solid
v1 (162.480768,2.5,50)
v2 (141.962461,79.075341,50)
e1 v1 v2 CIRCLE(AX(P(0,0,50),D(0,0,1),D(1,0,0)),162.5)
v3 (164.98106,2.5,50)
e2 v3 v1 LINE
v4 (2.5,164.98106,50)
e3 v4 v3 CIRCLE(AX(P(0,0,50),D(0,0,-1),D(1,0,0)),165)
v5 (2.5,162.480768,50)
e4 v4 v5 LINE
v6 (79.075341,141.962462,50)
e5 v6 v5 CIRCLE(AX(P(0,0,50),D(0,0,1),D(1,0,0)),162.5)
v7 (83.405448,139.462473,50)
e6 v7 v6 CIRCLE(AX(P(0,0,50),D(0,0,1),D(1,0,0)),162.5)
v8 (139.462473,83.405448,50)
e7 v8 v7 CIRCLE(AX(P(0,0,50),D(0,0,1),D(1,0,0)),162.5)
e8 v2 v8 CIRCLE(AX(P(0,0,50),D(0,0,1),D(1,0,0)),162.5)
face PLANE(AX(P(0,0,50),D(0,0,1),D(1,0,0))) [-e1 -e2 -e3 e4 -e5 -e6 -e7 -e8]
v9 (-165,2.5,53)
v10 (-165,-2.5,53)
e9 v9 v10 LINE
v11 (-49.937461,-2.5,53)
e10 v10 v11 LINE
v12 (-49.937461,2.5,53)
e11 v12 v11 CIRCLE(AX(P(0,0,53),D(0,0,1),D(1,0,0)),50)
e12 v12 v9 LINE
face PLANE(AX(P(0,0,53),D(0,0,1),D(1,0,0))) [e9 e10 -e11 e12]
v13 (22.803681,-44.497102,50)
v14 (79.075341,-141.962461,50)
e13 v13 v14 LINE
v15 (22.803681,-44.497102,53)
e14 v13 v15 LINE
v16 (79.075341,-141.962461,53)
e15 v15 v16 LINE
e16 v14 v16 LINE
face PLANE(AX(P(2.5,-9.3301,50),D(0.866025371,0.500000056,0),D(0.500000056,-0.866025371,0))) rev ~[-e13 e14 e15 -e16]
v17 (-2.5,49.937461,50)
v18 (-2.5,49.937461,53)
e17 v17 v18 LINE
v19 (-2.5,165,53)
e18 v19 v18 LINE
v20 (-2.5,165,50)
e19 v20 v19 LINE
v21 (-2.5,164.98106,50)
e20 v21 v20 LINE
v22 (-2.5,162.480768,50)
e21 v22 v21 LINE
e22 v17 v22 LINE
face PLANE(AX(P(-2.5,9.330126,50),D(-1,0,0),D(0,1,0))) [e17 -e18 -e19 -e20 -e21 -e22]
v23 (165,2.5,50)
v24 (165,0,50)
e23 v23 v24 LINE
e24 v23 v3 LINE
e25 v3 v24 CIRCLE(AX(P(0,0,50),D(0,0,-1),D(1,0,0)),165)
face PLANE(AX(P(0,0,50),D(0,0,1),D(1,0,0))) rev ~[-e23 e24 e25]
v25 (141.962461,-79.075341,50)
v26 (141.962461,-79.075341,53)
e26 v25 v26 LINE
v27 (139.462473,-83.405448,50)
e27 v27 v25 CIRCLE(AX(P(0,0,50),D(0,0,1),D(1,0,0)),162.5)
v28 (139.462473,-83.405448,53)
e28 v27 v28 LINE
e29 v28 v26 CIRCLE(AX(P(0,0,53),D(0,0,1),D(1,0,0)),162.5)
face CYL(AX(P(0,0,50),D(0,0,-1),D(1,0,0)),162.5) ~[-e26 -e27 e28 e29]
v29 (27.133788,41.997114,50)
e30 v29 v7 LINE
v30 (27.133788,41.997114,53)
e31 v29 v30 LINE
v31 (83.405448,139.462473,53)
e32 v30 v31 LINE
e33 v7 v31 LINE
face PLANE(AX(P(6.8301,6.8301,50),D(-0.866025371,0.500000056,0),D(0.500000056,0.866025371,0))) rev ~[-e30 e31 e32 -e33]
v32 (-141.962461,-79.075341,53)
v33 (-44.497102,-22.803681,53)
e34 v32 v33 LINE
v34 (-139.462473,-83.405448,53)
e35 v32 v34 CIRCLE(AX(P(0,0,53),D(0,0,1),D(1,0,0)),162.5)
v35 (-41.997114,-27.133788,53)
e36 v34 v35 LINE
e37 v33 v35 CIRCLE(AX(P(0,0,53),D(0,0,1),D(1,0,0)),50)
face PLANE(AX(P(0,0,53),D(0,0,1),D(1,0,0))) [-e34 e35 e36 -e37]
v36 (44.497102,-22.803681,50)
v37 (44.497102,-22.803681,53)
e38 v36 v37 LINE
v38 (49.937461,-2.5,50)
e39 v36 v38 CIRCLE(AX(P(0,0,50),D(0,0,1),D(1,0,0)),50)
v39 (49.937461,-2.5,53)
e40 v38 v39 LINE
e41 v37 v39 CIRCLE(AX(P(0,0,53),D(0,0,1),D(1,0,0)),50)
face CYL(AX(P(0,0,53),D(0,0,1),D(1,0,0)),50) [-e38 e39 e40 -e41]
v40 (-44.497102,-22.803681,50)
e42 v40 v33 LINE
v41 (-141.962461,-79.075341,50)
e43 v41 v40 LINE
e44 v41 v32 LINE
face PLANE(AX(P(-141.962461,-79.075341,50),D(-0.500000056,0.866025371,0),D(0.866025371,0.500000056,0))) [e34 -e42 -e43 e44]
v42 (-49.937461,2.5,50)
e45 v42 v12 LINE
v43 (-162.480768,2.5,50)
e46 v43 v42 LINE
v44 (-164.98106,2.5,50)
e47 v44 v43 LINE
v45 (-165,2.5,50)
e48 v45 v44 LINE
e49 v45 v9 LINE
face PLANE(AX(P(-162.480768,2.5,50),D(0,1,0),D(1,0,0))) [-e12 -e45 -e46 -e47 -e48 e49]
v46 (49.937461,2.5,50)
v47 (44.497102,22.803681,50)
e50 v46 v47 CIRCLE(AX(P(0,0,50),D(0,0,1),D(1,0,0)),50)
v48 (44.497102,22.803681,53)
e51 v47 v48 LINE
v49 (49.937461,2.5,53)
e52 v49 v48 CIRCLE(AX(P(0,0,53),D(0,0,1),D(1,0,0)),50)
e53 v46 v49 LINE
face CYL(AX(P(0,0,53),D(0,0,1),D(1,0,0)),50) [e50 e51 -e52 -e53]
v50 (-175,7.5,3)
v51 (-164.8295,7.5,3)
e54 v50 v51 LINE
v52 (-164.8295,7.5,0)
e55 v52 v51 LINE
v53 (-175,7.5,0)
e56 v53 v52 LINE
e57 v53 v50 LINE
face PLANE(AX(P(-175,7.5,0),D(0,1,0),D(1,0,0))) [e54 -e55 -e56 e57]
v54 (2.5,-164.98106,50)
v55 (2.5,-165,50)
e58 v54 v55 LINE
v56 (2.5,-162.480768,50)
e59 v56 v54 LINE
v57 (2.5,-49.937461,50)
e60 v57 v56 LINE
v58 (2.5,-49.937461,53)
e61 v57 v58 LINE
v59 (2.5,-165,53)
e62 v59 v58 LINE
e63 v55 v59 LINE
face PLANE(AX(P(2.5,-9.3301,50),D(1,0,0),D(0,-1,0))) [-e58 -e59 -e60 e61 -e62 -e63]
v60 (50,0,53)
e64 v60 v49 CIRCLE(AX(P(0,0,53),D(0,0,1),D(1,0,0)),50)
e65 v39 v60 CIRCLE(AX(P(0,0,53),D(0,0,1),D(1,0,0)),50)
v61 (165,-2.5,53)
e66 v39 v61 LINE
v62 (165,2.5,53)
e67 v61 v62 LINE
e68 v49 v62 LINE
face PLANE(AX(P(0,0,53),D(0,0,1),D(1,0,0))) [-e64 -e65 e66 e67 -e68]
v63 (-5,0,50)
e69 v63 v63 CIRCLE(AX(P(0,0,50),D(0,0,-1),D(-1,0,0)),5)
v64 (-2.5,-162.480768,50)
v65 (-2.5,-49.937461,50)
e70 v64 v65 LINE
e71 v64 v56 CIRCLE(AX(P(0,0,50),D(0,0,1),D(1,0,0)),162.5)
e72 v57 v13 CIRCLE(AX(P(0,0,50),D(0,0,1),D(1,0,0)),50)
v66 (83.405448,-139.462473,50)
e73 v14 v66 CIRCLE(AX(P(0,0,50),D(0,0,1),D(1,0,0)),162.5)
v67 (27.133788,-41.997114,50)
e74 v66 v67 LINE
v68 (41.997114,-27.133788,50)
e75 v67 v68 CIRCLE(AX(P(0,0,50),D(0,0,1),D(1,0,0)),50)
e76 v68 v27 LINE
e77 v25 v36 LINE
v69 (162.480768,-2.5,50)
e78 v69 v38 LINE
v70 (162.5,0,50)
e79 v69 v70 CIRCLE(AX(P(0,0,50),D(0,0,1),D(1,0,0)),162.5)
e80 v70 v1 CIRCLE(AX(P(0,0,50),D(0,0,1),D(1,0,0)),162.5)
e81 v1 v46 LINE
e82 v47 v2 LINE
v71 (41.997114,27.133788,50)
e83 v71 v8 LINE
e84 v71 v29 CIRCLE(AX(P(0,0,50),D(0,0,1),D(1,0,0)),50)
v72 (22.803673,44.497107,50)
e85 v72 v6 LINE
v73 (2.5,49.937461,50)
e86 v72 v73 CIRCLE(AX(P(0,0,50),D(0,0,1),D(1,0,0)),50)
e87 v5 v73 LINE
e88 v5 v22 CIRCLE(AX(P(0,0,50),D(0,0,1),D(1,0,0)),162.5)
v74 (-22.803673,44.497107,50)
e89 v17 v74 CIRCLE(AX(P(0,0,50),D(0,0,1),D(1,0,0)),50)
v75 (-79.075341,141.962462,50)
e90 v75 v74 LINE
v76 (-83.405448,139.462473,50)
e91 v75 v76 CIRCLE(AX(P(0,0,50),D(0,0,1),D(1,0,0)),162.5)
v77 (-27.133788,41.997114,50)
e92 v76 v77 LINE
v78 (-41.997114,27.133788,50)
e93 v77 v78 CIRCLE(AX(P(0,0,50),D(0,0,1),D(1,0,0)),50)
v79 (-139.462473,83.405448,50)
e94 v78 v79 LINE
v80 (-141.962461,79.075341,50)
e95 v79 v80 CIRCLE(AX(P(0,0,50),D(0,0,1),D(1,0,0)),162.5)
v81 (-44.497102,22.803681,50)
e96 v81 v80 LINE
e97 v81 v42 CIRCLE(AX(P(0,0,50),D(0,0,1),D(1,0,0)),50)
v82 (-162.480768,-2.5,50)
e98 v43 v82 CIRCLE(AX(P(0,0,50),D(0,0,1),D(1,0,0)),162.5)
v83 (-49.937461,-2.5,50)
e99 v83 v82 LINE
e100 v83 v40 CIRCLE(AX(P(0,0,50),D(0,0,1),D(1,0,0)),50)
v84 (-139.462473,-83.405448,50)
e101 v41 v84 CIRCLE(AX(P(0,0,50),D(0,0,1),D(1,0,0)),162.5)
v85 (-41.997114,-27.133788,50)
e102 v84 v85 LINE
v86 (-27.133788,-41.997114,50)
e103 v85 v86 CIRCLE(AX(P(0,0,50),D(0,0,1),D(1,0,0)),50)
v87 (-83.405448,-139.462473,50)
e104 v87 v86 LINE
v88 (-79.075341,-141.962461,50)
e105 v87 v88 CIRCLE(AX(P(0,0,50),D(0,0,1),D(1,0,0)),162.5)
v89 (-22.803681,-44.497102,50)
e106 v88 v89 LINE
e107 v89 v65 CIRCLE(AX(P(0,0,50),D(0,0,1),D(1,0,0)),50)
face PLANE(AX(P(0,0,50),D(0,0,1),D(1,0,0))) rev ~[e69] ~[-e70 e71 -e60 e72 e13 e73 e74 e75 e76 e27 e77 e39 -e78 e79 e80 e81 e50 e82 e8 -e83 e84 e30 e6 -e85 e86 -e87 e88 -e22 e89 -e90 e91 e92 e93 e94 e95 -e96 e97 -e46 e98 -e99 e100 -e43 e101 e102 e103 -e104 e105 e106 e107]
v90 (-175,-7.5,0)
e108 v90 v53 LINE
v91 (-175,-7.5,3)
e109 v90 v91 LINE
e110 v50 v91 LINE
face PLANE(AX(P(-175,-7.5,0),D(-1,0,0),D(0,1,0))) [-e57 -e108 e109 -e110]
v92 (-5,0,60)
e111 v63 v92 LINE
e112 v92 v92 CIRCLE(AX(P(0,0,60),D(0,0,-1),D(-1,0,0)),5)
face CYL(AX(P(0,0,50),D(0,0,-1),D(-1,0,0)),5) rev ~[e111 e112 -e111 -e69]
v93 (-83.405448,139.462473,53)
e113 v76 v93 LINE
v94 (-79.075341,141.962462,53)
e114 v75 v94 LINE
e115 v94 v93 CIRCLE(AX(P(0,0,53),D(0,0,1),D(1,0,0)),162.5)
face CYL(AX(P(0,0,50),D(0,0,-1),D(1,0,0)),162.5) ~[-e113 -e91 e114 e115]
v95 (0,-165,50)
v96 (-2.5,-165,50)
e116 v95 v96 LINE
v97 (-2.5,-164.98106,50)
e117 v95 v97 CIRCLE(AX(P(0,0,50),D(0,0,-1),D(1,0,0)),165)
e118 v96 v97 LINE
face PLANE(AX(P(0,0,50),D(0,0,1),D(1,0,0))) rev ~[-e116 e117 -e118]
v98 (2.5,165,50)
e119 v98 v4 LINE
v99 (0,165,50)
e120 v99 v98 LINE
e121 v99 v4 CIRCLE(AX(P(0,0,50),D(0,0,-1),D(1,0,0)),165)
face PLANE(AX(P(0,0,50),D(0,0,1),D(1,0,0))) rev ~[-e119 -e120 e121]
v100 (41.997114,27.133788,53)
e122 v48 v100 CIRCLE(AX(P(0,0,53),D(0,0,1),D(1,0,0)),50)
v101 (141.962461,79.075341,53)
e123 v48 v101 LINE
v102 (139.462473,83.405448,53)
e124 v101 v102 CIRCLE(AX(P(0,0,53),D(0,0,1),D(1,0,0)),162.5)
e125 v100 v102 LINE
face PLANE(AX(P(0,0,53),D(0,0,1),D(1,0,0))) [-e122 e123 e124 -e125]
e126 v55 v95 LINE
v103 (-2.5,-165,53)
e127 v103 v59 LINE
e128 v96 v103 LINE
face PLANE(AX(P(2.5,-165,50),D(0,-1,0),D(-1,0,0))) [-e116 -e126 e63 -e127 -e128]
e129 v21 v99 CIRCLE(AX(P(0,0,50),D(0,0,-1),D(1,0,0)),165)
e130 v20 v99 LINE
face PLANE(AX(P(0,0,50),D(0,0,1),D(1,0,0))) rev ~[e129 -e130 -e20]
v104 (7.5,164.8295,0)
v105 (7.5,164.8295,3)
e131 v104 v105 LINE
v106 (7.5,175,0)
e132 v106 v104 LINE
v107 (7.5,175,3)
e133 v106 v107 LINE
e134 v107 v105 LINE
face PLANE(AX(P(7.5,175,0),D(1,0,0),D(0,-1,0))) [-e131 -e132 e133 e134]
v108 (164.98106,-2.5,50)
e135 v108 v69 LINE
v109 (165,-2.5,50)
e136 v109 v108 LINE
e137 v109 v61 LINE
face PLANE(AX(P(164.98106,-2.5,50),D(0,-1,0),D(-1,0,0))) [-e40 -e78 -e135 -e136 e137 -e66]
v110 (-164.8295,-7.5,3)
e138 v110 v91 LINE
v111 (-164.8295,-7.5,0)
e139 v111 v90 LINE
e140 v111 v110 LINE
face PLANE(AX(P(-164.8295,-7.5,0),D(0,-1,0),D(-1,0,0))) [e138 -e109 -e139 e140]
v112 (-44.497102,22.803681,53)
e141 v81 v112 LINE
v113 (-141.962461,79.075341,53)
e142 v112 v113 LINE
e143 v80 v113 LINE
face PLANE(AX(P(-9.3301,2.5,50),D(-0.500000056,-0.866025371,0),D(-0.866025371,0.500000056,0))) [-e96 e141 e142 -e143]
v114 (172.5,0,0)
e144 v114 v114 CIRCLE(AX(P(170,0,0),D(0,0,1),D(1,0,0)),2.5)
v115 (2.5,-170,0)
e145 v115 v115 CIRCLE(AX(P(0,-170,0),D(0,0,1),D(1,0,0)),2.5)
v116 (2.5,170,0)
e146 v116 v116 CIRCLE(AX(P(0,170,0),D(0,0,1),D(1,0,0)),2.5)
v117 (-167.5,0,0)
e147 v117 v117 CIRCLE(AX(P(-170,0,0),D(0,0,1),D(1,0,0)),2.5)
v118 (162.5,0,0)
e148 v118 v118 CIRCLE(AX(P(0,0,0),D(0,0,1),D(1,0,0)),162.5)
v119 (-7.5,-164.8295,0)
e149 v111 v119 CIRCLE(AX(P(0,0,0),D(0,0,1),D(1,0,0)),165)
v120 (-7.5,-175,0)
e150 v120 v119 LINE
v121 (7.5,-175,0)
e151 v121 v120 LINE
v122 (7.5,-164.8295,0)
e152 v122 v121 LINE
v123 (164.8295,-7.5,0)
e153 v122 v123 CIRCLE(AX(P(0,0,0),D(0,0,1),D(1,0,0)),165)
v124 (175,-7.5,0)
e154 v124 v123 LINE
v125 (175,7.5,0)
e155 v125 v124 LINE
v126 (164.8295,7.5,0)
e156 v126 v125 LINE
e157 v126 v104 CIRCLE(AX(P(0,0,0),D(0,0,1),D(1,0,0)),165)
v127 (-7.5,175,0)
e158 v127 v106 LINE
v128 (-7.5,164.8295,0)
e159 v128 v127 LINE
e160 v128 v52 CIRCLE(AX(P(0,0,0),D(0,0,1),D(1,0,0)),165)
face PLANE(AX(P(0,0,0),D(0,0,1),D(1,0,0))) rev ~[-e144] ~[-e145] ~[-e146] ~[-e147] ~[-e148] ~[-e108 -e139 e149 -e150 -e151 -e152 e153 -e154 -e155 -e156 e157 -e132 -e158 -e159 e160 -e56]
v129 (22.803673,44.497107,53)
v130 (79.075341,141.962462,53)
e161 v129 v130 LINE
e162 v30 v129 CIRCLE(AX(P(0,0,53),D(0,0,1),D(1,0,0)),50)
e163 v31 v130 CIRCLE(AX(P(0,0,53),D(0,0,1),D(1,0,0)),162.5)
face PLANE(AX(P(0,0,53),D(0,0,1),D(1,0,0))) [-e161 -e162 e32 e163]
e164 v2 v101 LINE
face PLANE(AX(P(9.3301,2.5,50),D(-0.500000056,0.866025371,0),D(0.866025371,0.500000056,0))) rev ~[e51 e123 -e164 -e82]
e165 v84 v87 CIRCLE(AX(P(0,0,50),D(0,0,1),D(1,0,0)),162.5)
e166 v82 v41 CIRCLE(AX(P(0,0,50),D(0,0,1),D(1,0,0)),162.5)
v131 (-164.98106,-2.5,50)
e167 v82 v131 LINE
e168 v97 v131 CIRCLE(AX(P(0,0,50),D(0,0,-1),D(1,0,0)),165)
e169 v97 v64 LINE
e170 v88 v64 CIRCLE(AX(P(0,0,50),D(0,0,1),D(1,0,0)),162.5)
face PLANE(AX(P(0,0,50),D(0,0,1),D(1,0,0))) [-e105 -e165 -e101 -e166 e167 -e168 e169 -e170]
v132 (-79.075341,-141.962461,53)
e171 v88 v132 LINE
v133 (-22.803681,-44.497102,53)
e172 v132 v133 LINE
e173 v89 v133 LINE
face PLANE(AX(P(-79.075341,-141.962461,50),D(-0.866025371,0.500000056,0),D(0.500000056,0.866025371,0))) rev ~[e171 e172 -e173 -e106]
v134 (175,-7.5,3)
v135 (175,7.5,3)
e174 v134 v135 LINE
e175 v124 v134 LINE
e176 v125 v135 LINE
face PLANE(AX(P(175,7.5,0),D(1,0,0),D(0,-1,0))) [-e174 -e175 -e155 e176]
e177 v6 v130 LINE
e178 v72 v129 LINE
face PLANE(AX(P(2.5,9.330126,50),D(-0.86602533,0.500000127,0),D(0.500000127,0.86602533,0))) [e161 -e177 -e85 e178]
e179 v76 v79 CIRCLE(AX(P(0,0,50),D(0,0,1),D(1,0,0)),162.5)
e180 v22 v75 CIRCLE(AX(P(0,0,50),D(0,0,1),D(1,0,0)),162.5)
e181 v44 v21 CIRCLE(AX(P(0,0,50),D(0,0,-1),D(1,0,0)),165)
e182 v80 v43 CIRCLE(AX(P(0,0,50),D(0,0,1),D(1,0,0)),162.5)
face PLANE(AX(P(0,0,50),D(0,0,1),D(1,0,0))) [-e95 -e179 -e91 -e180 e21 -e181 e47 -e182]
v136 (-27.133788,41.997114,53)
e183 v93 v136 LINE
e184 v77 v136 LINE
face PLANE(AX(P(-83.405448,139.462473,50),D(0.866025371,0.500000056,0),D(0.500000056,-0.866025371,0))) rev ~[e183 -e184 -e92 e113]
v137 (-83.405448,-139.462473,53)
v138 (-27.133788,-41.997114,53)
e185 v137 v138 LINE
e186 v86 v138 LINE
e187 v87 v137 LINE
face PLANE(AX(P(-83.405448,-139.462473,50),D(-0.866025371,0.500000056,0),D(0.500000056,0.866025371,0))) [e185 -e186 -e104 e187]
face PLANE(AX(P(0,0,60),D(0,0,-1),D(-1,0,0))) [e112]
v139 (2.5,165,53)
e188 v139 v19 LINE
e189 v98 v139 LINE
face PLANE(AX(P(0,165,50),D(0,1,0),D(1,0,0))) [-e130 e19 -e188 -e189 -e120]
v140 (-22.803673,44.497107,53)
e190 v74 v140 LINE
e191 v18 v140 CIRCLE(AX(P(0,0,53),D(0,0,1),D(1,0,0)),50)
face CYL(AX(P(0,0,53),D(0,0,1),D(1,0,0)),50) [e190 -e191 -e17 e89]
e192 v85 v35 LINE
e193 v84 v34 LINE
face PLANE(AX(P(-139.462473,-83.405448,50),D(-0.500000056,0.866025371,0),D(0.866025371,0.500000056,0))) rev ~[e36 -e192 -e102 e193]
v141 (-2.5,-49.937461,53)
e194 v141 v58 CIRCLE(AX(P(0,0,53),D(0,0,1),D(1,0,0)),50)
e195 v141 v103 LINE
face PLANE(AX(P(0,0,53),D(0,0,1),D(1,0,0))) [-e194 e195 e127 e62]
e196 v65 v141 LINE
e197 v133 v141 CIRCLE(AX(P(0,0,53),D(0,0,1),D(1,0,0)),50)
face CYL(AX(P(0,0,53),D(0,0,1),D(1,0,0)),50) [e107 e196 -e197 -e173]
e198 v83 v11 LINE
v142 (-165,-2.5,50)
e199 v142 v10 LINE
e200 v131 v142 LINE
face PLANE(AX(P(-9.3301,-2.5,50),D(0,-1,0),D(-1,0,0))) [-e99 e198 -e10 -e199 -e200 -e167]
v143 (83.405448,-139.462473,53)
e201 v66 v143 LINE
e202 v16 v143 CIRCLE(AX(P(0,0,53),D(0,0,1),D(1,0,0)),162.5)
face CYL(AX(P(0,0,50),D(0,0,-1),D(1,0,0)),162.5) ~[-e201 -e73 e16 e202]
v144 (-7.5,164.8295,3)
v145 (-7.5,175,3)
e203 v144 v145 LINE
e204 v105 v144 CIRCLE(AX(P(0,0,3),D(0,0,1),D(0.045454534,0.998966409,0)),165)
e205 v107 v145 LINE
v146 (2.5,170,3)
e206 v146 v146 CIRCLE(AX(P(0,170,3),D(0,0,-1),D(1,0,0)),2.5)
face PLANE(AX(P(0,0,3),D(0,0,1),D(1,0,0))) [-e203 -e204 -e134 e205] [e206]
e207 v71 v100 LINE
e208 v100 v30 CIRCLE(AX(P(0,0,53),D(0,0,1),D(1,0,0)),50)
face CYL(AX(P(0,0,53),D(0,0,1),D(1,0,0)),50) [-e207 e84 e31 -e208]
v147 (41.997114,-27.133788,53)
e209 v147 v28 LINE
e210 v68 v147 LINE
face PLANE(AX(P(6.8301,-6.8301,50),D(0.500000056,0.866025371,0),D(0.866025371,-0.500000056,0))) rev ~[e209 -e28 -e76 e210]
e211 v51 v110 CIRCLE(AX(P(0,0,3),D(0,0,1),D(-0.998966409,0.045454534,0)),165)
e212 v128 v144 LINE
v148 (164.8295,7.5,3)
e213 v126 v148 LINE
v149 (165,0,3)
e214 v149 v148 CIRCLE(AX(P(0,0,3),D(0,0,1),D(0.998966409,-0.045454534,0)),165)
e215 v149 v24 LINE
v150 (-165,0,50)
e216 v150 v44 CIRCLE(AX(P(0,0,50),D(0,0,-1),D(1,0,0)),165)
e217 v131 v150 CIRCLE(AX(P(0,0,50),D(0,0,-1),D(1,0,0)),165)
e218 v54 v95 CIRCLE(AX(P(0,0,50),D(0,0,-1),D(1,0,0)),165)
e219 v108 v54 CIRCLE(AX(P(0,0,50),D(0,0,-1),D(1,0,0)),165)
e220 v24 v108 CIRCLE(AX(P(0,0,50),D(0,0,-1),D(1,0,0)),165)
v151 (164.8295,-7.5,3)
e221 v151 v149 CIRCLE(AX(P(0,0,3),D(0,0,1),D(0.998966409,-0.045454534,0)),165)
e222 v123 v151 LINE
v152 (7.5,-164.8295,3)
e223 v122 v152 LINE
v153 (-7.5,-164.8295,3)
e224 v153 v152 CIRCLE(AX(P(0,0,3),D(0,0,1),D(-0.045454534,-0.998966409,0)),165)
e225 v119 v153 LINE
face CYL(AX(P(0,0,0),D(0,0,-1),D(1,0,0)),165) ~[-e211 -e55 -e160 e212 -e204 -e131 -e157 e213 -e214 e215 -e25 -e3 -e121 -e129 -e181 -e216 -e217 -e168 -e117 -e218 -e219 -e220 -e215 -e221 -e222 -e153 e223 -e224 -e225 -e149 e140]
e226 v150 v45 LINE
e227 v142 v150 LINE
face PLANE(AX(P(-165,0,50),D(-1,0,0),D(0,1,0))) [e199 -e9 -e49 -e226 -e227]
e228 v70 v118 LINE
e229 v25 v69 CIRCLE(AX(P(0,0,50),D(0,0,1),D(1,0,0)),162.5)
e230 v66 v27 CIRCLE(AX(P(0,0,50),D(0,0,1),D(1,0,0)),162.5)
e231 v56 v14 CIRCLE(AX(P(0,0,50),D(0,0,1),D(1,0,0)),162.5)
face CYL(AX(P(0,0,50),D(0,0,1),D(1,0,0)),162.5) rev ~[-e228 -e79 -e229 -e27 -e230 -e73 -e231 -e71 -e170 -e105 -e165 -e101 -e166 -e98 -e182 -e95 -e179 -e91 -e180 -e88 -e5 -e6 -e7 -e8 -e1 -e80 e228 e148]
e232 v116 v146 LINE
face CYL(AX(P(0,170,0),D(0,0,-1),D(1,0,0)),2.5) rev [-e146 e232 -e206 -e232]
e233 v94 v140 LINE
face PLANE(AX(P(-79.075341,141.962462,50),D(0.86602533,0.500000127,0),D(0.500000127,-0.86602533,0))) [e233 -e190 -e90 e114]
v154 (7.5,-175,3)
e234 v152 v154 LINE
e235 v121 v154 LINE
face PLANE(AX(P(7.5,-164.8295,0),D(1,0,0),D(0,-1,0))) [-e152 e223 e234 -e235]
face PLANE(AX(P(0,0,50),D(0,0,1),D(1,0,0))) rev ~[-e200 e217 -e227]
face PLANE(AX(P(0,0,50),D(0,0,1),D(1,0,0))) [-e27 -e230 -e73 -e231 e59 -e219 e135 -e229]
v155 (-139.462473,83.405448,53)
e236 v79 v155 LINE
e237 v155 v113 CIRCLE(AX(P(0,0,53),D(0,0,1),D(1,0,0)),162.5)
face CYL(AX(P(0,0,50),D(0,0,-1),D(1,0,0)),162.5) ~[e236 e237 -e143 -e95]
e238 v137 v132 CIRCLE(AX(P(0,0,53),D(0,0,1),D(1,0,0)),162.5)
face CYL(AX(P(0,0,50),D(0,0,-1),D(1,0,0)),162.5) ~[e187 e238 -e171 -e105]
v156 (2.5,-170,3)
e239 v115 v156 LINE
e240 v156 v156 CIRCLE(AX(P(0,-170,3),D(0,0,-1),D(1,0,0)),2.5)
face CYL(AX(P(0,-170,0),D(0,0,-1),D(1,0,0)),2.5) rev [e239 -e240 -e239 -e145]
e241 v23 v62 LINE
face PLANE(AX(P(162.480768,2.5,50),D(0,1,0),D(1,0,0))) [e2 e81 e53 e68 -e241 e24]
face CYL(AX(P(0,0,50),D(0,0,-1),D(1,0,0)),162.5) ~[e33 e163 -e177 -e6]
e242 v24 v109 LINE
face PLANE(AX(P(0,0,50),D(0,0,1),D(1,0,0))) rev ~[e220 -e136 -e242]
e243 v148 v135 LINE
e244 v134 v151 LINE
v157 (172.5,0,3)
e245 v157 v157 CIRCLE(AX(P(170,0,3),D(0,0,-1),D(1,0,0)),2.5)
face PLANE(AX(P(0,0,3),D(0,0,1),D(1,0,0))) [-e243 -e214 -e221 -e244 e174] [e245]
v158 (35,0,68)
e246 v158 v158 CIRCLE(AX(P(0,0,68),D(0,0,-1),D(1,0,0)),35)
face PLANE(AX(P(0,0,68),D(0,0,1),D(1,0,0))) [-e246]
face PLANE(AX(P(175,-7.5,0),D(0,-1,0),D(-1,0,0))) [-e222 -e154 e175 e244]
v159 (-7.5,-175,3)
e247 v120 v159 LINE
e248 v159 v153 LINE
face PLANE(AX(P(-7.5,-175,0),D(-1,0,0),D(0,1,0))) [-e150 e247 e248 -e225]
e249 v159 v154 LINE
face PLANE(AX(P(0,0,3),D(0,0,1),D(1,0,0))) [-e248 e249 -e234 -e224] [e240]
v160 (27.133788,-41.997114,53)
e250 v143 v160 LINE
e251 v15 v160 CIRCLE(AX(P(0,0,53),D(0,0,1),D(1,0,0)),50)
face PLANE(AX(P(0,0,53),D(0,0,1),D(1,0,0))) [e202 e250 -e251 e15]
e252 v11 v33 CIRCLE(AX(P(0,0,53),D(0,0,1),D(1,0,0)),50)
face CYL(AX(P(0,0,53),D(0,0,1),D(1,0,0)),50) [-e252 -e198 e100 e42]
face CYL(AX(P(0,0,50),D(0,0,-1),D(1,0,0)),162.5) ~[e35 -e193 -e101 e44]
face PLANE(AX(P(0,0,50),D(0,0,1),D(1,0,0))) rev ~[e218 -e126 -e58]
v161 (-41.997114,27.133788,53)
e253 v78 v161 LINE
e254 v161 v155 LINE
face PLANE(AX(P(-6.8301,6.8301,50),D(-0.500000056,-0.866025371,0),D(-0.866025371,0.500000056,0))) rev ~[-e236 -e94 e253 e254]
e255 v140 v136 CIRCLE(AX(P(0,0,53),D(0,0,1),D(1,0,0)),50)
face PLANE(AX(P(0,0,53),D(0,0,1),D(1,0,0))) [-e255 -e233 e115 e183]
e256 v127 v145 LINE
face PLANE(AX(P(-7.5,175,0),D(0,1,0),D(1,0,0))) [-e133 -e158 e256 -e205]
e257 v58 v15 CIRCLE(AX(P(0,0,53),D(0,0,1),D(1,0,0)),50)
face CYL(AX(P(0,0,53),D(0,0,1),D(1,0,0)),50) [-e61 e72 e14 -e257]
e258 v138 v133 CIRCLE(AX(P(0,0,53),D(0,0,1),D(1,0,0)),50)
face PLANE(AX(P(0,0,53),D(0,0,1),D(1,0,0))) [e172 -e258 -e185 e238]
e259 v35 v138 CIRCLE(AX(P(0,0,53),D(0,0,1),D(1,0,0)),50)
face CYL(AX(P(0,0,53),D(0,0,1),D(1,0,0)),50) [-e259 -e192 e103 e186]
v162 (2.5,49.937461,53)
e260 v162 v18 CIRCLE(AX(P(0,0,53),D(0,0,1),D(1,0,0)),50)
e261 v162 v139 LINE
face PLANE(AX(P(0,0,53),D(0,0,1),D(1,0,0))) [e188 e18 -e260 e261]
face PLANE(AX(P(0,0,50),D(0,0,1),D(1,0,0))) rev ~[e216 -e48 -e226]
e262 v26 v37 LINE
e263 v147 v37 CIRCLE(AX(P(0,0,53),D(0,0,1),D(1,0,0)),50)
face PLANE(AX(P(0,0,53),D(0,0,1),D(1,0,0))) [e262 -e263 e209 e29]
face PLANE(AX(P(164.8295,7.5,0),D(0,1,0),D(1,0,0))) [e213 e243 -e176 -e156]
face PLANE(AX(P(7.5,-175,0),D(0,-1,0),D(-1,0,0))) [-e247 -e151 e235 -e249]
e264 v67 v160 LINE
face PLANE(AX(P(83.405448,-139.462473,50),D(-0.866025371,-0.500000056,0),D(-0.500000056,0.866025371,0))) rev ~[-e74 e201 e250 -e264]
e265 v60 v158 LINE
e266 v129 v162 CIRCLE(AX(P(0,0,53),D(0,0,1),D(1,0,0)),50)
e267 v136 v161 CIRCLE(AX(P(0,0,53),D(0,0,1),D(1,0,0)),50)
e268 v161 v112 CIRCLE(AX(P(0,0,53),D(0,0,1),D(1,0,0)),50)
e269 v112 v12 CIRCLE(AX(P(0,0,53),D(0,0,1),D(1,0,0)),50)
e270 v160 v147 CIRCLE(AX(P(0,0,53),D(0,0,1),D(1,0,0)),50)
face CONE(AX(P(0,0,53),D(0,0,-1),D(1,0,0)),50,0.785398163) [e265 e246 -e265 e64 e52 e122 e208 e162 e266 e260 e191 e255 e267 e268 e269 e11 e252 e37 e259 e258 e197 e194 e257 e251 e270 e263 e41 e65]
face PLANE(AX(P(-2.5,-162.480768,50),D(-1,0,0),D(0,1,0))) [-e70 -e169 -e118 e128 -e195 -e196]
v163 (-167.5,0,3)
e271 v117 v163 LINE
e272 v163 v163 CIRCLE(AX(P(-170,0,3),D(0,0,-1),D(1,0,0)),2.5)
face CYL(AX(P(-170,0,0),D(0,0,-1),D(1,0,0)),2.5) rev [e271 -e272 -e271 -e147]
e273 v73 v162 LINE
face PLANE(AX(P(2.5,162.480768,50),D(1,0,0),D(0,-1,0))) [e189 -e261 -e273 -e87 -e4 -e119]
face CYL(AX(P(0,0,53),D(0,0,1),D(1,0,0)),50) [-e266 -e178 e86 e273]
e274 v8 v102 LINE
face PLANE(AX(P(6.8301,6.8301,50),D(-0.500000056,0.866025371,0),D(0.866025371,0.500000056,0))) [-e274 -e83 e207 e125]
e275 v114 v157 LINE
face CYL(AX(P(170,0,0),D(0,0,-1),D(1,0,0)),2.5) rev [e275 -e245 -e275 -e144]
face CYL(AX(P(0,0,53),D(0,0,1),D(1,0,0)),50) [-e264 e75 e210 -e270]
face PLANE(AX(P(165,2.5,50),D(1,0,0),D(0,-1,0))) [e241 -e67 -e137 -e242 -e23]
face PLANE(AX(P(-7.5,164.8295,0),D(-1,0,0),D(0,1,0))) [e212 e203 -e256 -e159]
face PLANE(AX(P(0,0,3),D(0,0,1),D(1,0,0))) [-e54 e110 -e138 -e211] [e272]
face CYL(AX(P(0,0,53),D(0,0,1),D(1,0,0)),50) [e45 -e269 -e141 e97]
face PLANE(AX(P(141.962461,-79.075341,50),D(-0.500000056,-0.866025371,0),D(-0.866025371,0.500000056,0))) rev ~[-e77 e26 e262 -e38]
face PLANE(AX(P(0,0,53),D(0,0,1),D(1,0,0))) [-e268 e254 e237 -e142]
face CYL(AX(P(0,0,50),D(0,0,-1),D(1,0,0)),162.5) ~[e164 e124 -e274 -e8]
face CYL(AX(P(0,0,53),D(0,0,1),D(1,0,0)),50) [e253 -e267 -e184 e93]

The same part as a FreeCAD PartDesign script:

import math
import FreeCAD as App
import Part
import Sketcher
from FreeCAD import Vector
Q = App.Units.Quantity

doc = App.newDocument("Part")
params = doc.addObject("Spreadsheet::Sheet", "Params")
for row, (alias, value) in enumerate([
    ("sketch1_diameter", "5 mm"),
    ("sketch1_radius", "165 mm"),
    ("sketch1_width", "15 mm"),
    ("pad1_length", "3 mm"),
    ("sketch2_diameter", "330 mm"),
    ("pad2_length", "50 mm"),
    ("sketch3_diameter", "325 mm"),
    ("pocket1_length", "50 mm"),
    ("sketch4_width", "5 mm"),
    ("sketch4_radius", "162.5 mm"),
    ("sketch4_width2", "155.67 mm"),
    ("pad3_length", "3 mm"),
    ("sketch5_diameter", "100 mm"),
    ("pad4_length", "15 mm"),
    ("pad4_length2", "3 mm"),
    ("pad4_taper", "-45 deg"),
    ("sketch6_diameter", "10 mm"),
    ("pocket2_length", "10 mm"),
], start=1):
    params.set(f"A{row}", alias)
    params.set(f"B{row}", "=" + value)
    params.setAlias(f"B{row}", alias)

body = doc.addObject("PartDesign::Body", "Body")
body.AllowCompound = True

# Sketch on XY plane
sketch1 = body.newObject("Sketcher::SketchObject", "Sketch")
sketch1.AttachmentSupport = (doc.getObject("XY_Plane"), [""])
sketch1.MapMode = "FlatFace"
sketch1.addGeometry(Part.ArcOfCircle(Part.Circle(Vector(0, 0, 0), Vector(0, 0, 1), 165), math.radians(-2.605251), math.radians(2.605251)), False)
sketch1.addGeometry(Part.LineSegment(Vector(164.8295, -7.5, 0), Vector(175, -7.5, 0)), False)
sketch1.addGeometry(Part.LineSegment(Vector(175, -7.5, 0), Vector(175, 7.5, 0)), False)
sketch1.addGeometry(Part.LineSegment(Vector(175, 7.5, 0), Vector(164.8295, 7.5, 0)), False)
sketch1.addGeometry(Part.Circle(Vector(170, 0, 0), Vector(0, 0, 1), 2.5), False)
sketch1.addGeometry(Part.ArcOfCircle(Part.Circle(Vector(0, 0, 0), Vector(0, 0, 1), 165), math.radians(87.394749), math.radians(92.605251)), False)
sketch1.addGeometry(Part.LineSegment(Vector(7.5, 164.8295, 0), Vector(7.5, 175, 0)), False)
sketch1.addGeometry(Part.LineSegment(Vector(7.5, 175, 0), Vector(-7.5, 175, 0)), False)
sketch1.addGeometry(Part.LineSegment(Vector(-7.5, 175, 0), Vector(-7.5, 164.8295, 0)), False)
sketch1.addGeometry(Part.Circle(Vector(0, 170, 0), Vector(0, 0, 1), 2.5), False)
sketch1.addGeometry(Part.ArcOfCircle(Part.Circle(Vector(0, 0, 0), Vector(0, 0, 1), 165), math.radians(-92.605251), math.radians(-87.394749)), False)
sketch1.addGeometry(Part.LineSegment(Vector(-7.5, -164.8295, 0), Vector(-7.5, -175, 0)), False)
sketch1.addGeometry(Part.LineSegment(Vector(-7.5, -175, 0), Vector(7.5, -175, 0)), False)
sketch1.addGeometry(Part.LineSegment(Vector(7.5, -175, 0), Vector(7.5, -164.8295, 0)), False)
sketch1.addGeometry(Part.Circle(Vector(0, -170, 0), Vector(0, 0, 1), 2.5), False)
sketch1.addGeometry(Part.ArcOfCircle(Part.Circle(Vector(0, 0, 0), Vector(0, 0, 1), 165), math.radians(177.394749), math.radians(182.605251)), False)
sketch1.addGeometry(Part.LineSegment(Vector(-164.8295, 7.5, 0), Vector(-175, 7.5, 0)), False)
sketch1.addGeometry(Part.LineSegment(Vector(-175, 7.5, 0), Vector(-175, -7.5, 0)), False)
sketch1.addGeometry(Part.LineSegment(Vector(-175, -7.5, 0), Vector(-164.8295, -7.5, 0)), False)
sketch1.addGeometry(Part.Circle(Vector(-170, 0, 0), Vector(0, 0, 1), 2.5), False)
sketch1.addConstraint(Sketcher.Constraint("Coincident", 0, 1, 1, 1))
sketch1.addConstraint(Sketcher.Constraint("Coincident", 1, 2, 2, 1))
sketch1.addConstraint(Sketcher.Constraint("Coincident", 2, 2, 3, 1))
sketch1.addConstraint(Sketcher.Constraint("Coincident", 3, 2, 0, 2))
sketch1.addConstraint(Sketcher.Constraint("Coincident", 5, 1, 6, 1))
sketch1.addConstraint(Sketcher.Constraint("Coincident", 6, 2, 7, 1))
sketch1.addConstraint(Sketcher.Constraint("Coincident", 7, 2, 8, 1))
sketch1.addConstraint(Sketcher.Constraint("Coincident", 8, 2, 5, 2))
sketch1.addConstraint(Sketcher.Constraint("Coincident", 10, 1, 11, 1))
sketch1.addConstraint(Sketcher.Constraint("Coincident", 11, 2, 12, 1))
sketch1.addConstraint(Sketcher.Constraint("Coincident", 12, 2, 13, 1))
sketch1.addConstraint(Sketcher.Constraint("Coincident", 13, 2, 10, 2))
sketch1.addConstraint(Sketcher.Constraint("Coincident", 15, 1, 16, 1))
sketch1.addConstraint(Sketcher.Constraint("Coincident", 16, 2, 17, 1))
sketch1.addConstraint(Sketcher.Constraint("Coincident", 17, 2, 18, 1))
sketch1.addConstraint(Sketcher.Constraint("Coincident", 18, 2, 15, 2))
sketch1.addConstraint(Sketcher.Constraint("Horizontal", 1))
sketch1.addConstraint(Sketcher.Constraint("Vertical", 2))
sketch1.addConstraint(Sketcher.Constraint("Horizontal", 3))
sketch1.addConstraint(Sketcher.Constraint("Vertical", 6))
sketch1.addConstraint(Sketcher.Constraint("Horizontal", 7))
sketch1.addConstraint(Sketcher.Constraint("Vertical", 8))
sketch1.addConstraint(Sketcher.Constraint("Vertical", 11))
sketch1.addConstraint(Sketcher.Constraint("Horizontal", 12))
sketch1.addConstraint(Sketcher.Constraint("Vertical", 13))
sketch1.addConstraint(Sketcher.Constraint("Horizontal", 16))
sketch1.addConstraint(Sketcher.Constraint("Vertical", 17))
sketch1.addConstraint(Sketcher.Constraint("Horizontal", 18))
sketch1.addConstraint(Sketcher.Constraint("Coincident", 0, 3, -1, 1))
sketch1.addConstraint(Sketcher.Constraint("Coincident", 5, 3, -1, 1))
sketch1.addConstraint(Sketcher.Constraint("Coincident", 10, 3, -1, 1))
sketch1.addConstraint(Sketcher.Constraint("Coincident", 15, 3, -1, 1))
sketch1.addConstraint(Sketcher.Constraint("Equal", 0, 5))
sketch1.addConstraint(Sketcher.Constraint("Equal", 4, 9))
sketch1.addConstraint(Sketcher.Constraint("Equal", 5, 10))
sketch1.addConstraint(Sketcher.Constraint("Equal", 9, 14))
sketch1.addConstraint(Sketcher.Constraint("Equal", 10, 15))
sketch1.addConstraint(Sketcher.Constraint("Equal", 14, 19))
sketch1.addConstraint(Sketcher.Constraint("Symmetric", 9, 3, 14, 3, -1, 1))
sketch1.addConstraint(Sketcher.Constraint("Symmetric", 4, 3, 19, 3, -1, 1))
sketch1.addConstraint(Sketcher.Constraint("Symmetric", 6, 2, 11, 2, -1, 1))
sketch1.addConstraint(Sketcher.Constraint("Symmetric", 1, 2, 16, 2, -1, 1))
sketch1.addConstraint(Sketcher.Constraint("PointOnObject", 4, 3, -1))
sketch1.addConstraint(Sketcher.Constraint("PointOnObject", 9, 3, -2))
sketch1.addConstraint(Sketcher.Constraint("Horizontal", 5, 1, 8, 2))
sketch1.addConstraint(Sketcher.Constraint("Horizontal", 10, 1, 13, 2))
sketch1.addConstraint(Sketcher.Constraint("Horizontal", 3, 2, 15, 1))
sketch1.addConstraint(Sketcher.Constraint("Horizontal", 1, 2, 17, 2))
sketch1.addConstraint(Sketcher.Constraint("Equal", 12, 2))
sketch1.addConstraint(Sketcher.Constraint("Equal", 18, 6))
sketch1.addConstraint(Sketcher.Constraint("Diameter", 4, Q("5 mm")))
sketch1.addConstraint(Sketcher.Constraint("Radius", 0, Q("165 mm")))
sketch1.addConstraint(Sketcher.Constraint("DistanceX", 4, 3, 1, 2, Q("5 mm")))
sketch1.addConstraint(Sketcher.Constraint("DistanceY", 9, 3, 6, 2, Q("5 mm")))
sketch1.addConstraint(Sketcher.Constraint("DistanceX", 7, 2, 7, 1, Q("15 mm")))
sketch1.addConstraint(Sketcher.Constraint("DistanceX", -1, 1, 4, 3, Q("170 mm")))
sketch1.setExpression("Constraints[50]", "Params.sketch1_diameter")
sketch1.setExpression("Constraints[51]", "Params.sketch1_radius")
sketch1.setExpression("Constraints[54]", "Params.sketch1_width")
pad1 = body.newObject("PartDesign::Pad", "Pad")
pad1.Profile = sketch1
pad1.setExpression("Length", "Params.pad1_length")

# Sketch on XY plane
sketch2 = body.newObject("Sketcher::SketchObject", "Sketch001")
sketch2.AttachmentSupport = (doc.getObject("XY_Plane"), [""])
sketch2.MapMode = "FlatFace"
sketch2.addGeometry(Part.Circle(Vector(0, 0, 0), Vector(0, 0, 1), 165), False)
sketch2.addConstraint(Sketcher.Constraint("Coincident", 0, 3, -1, 1))
sketch2.addConstraint(Sketcher.Constraint("Diameter", 0, Q("330 mm")))
sketch2.setExpression("Constraints[1]", "Params.sketch2_diameter")
pad2 = body.newObject("PartDesign::Pad", "Pad001")
pad2.Profile = sketch2
pad2.setExpression("Length", "Params.pad2_length")

# Sketch on XY plane
sketch3 = body.newObject("Sketcher::SketchObject", "Sketch002")
sketch3.AttachmentSupport = (doc.getObject("XY_Plane"), [""])
sketch3.MapMode = "FlatFace"
sketch3.AttachmentOffset = App.Placement(Vector(0, 0, 50), App.Rotation())
sketch3.addGeometry(Part.Circle(Vector(0, 0, 0), Vector(0, 0, 1), 162.5), False)
sketch3.addConstraint(Sketcher.Constraint("Coincident", 0, 3, -1, 1))
sketch3.addConstraint(Sketcher.Constraint("Diameter", 0, Q("325 mm")))
sketch3.setExpression("Constraints[1]", "Params.sketch3_diameter")
pocket1 = body.newObject("PartDesign::Pocket", "Pocket")
pocket1.Profile = sketch3
pocket1.setExpression("Length", "Params.pocket1_length")

# Sketch on XY plane
sketch4 = body.newObject("Sketcher::SketchObject", "Sketch003")
sketch4.AttachmentSupport = (doc.getObject("XY_Plane"), [""])
sketch4.MapMode = "FlatFace"
sketch4.AttachmentOffset = App.Placement(Vector(0, 0, 50), App.Rotation())
sketch4.addGeometry(Part.LineSegment(Vector(9.3301, 2.5, 0), Vector(141.962461, 79.075341, 0)), False)
sketch4.addGeometry(Part.ArcOfCircle(Part.Circle(Vector(0, 0, 0), Vector(0, 0, 1), 162.5), math.radians(29.1185), math.radians(30.881508)), False)
sketch4.addGeometry(Part.LineSegment(Vector(139.462473, 83.405448, 0), Vector(6.8301, 6.8301, 0)), False)
sketch4.addGeometry(Part.LineSegment(Vector(6.8301, 6.8301, 0), Vector(83.405448, 139.462473, 0)), False)
sketch4.addGeometry(Part.ArcOfCircle(Part.Circle(Vector(0, 0, 0), Vector(0, 0, 1), 162.5), math.radians(59.118492), math.radians(60.8815)), False)
sketch4.addGeometry(Part.LineSegment(Vector(79.075341, 141.962462, 0), Vector(2.5, 9.330126, 0)), False)
sketch4.addGeometry(Part.LineSegment(Vector(2.5, 9.330126, 0), Vector(2.5, 165, 0)), False)
sketch4.addGeometry(Part.LineSegment(Vector(2.5, 165, 0), Vector(-2.5, 165, 0)), False)
sketch4.addGeometry(Part.LineSegment(Vector(-2.5, 165, 0), Vector(-2.5, 9.330126, 0)), False)
sketch4.addGeometry(Part.LineSegment(Vector(-2.5, 9.330126, 0), Vector(-79.075341, 141.962462, 0)), False)
sketch4.addGeometry(Part.ArcOfCircle(Part.Circle(Vector(0, 0, 0), Vector(0, 0, 1), 162.5), math.radians(119.1185), math.radians(120.881508)), False)
sketch4.addGeometry(Part.LineSegment(Vector(-83.405448, 139.462473, 0), Vector(-6.8301, 6.8301, 0)), False)
sketch4.addGeometry(Part.LineSegment(Vector(-6.8301, 6.8301, 0), Vector(-139.462473, 83.405448, 0)), False)
sketch4.addGeometry(Part.ArcOfCircle(Part.Circle(Vector(0, 0, 0), Vector(0, 0, 1), 162.5), math.radians(149.118492), math.radians(150.8815)), False)
sketch4.addGeometry(Part.LineSegment(Vector(-141.962461, 79.075341, 0), Vector(-9.3301, 2.5, 0)), False)
sketch4.addGeometry(Part.LineSegment(Vector(-9.3301, 2.5, 0), Vector(-165, 2.5, 0)), False)
sketch4.addGeometry(Part.LineSegment(Vector(-165, 2.5, 0), Vector(-165, -2.5, 0)), False)
sketch4.addGeometry(Part.LineSegment(Vector(-165, -2.5, 0), Vector(-9.3301, -2.5, 0)), False)
sketch4.addGeometry(Part.LineSegment(Vector(-9.3301, -2.5, 0), Vector(-141.962461, -79.075341, 0)), False)
sketch4.addGeometry(Part.ArcOfCircle(Part.Circle(Vector(0, 0, 0), Vector(0, 0, 1), 162.5), math.radians(-150.8815), math.radians(-149.118492)), False)
sketch4.addGeometry(Part.LineSegment(Vector(-139.462473, -83.405448, 0), Vector(-6.8301, -6.8301, 0)), False)
sketch4.addGeometry(Part.LineSegment(Vector(-6.8301, -6.8301, 0), Vector(-83.405448, -139.462473, 0)), False)
sketch4.addGeometry(Part.ArcOfCircle(Part.Circle(Vector(0, 0, 0), Vector(0, 0, 1), 162.5), math.radians(-120.881508), math.radians(-119.1185)), False)
sketch4.addGeometry(Part.LineSegment(Vector(-79.075341, -141.962461, 0), Vector(-2.5, -9.3301, 0)), False)
sketch4.addGeometry(Part.LineSegment(Vector(-2.5, -9.3301, 0), Vector(-2.5, -165, 0)), False)
sketch4.addGeometry(Part.LineSegment(Vector(-2.5, -165, 0), Vector(2.5, -165, 0)), False)
sketch4.addGeometry(Part.LineSegment(Vector(2.5, -165, 0), Vector(2.5, -9.3301, 0)), False)
sketch4.addGeometry(Part.LineSegment(Vector(2.5, -9.3301, 0), Vector(79.075341, -141.962461, 0)), False)
sketch4.addGeometry(Part.ArcOfCircle(Part.Circle(Vector(0, 0, 0), Vector(0, 0, 1), 162.5), math.radians(-60.8815), math.radians(-59.118492)), False)
sketch4.addGeometry(Part.LineSegment(Vector(83.405448, -139.462473, 0), Vector(6.8301, -6.8301, 0)), False)
sketch4.addGeometry(Part.LineSegment(Vector(6.8301, -6.8301, 0), Vector(139.462473, -83.405448, 0)), False)
sketch4.addGeometry(Part.ArcOfCircle(Part.Circle(Vector(0, 0, 0), Vector(0, 0, 1), 162.5), math.radians(-30.881508), math.radians(-29.1185)), False)
sketch4.addGeometry(Part.LineSegment(Vector(141.962461, -79.075341, 0), Vector(9.3301, -2.5, 0)), False)
sketch4.addGeometry(Part.LineSegment(Vector(9.3301, -2.5, 0), Vector(165, -2.5, 0)), False)
sketch4.addGeometry(Part.LineSegment(Vector(165, -2.5, 0), Vector(165, 2.5, 0)), False)
sketch4.addGeometry(Part.LineSegment(Vector(165, 2.5, 0), Vector(9.3301, 2.5, 0)), False)
sketch4.addConstraint(Sketcher.Constraint("Coincident", 0, 2, 1, 1))
sketch4.addConstraint(Sketcher.Constraint("Coincident", 1, 2, 2, 1))
sketch4.addConstraint(Sketcher.Constraint("Coincident", 2, 2, 3, 1))
sketch4.addConstraint(Sketcher.Constraint("Coincident", 3, 2, 4, 1))
sketch4.addConstraint(Sketcher.Constraint("Coincident", 4, 2, 5, 1))
sketch4.addConstraint(Sketcher.Constraint("Coincident", 5, 2, 6, 1))
sketch4.addConstraint(Sketcher.Constraint("Coincident", 6, 2, 7, 1))
sketch4.addConstraint(Sketcher.Constraint("Coincident", 7, 2, 8, 1))
sketch4.addConstraint(Sketcher.Constraint("Coincident", 8, 2, 9, 1))
sketch4.addConstraint(Sketcher.Constraint("Coincident", 9, 2, 10, 1))
sketch4.addConstraint(Sketcher.Constraint("Coincident", 10, 2, 11, 1))
sketch4.addConstraint(Sketcher.Constraint("Coincident", 11, 2, 12, 1))
sketch4.addConstraint(Sketcher.Constraint("Coincident", 12, 2, 13, 1))
sketch4.addConstraint(Sketcher.Constraint("Coincident", 13, 2, 14, 1))
sketch4.addConstraint(Sketcher.Constraint("Coincident", 14, 2, 15, 1))
sketch4.addConstraint(Sketcher.Constraint("Coincident", 15, 2, 16, 1))
sketch4.addConstraint(Sketcher.Constraint("Coincident", 16, 2, 17, 1))
sketch4.addConstraint(Sketcher.Constraint("Coincident", 17, 2, 18, 1))
sketch4.addConstraint(Sketcher.Constraint("Coincident", 18, 2, 19, 1))
sketch4.addConstraint(Sketcher.Constraint("Coincident", 19, 2, 20, 1))
sketch4.addConstraint(Sketcher.Constraint("Coincident", 20, 2, 21, 1))
sketch4.addConstraint(Sketcher.Constraint("Coincident", 21, 2, 22, 1))
sketch4.addConstraint(Sketcher.Constraint("Coincident", 22, 2, 23, 1))
sketch4.addConstraint(Sketcher.Constraint("Coincident", 23, 2, 24, 1))
sketch4.addConstraint(Sketcher.Constraint("Coincident", 24, 2, 25, 1))
sketch4.addConstraint(Sketcher.Constraint("Coincident", 25, 2, 26, 1))
sketch4.addConstraint(Sketcher.Constraint("Coincident", 26, 2, 27, 1))
sketch4.addConstraint(Sketcher.Constraint("Coincident", 27, 2, 28, 1))
sketch4.addConstraint(Sketcher.Constraint("Coincident", 28, 2, 29, 1))
sketch4.addConstraint(Sketcher.Constraint("Coincident", 29, 2, 30, 1))
sketch4.addConstraint(Sketcher.Constraint("Coincident", 30, 2, 31, 1))
sketch4.addConstraint(Sketcher.Constraint("Coincident", 31, 2, 32, 1))
sketch4.addConstraint(Sketcher.Constraint("Coincident", 32, 2, 33, 1))
sketch4.addConstraint(Sketcher.Constraint("Coincident", 33, 2, 34, 1))
sketch4.addConstraint(Sketcher.Constraint("Coincident", 34, 2, 35, 1))
sketch4.addConstraint(Sketcher.Constraint("Coincident", 35, 2, 0, 1))
sketch4.addConstraint(Sketcher.Constraint("Vertical", 6))
sketch4.addConstraint(Sketcher.Constraint("Horizontal", 7))
sketch4.addConstraint(Sketcher.Constraint("Vertical", 8))
sketch4.addConstraint(Sketcher.Constraint("Horizontal", 15))
sketch4.addConstraint(Sketcher.Constraint("Vertical", 16))
sketch4.addConstraint(Sketcher.Constraint("Horizontal", 17))
sketch4.addConstraint(Sketcher.Constraint("Vertical", 24))
sketch4.addConstraint(Sketcher.Constraint("Horizontal", 25))
sketch4.addConstraint(Sketcher.Constraint("Vertical", 26))
sketch4.addConstraint(Sketcher.Constraint("Horizontal", 33))
sketch4.addConstraint(Sketcher.Constraint("Vertical", 34))
sketch4.addConstraint(Sketcher.Constraint("Horizontal", 35))
sketch4.addConstraint(Sketcher.Constraint("Coincident", 1, 3, -1, 1))
sketch4.addConstraint(Sketcher.Constraint("Coincident", 4, 3, -1, 1))
sketch4.addConstraint(Sketcher.Constraint("Coincident", 10, 3, -1, 1))
sketch4.addConstraint(Sketcher.Constraint("Coincident", 13, 3, -1, 1))
sketch4.addConstraint(Sketcher.Constraint("Coincident", 19, 3, -1, 1))
sketch4.addConstraint(Sketcher.Constraint("Coincident", 22, 3, -1, 1))
sketch4.addConstraint(Sketcher.Constraint("Coincident", 28, 3, -1, 1))
sketch4.addConstraint(Sketcher.Constraint("Coincident", 31, 3, -1, 1))
sketch4.addConstraint(Sketcher.Constraint("Equal", 1, 4))
sketch4.addConstraint(Sketcher.Constraint("Equal", 4, 10))
sketch4.addConstraint(Sketcher.Constraint("Equal", 10, 13))
sketch4.addConstraint(Sketcher.Constraint("Equal", 13, 19))
sketch4.addConstraint(Sketcher.Constraint("Equal", 19, 22))
sketch4.addConstraint(Sketcher.Constraint("Equal", 22, 28))
sketch4.addConstraint(Sketcher.Constraint("Equal", 28, 31))
sketch4.addConstraint(Sketcher.Constraint("Symmetric", 2, 2, 20, 2, -1, 1))
sketch4.addConstraint(Sketcher.Constraint("Symmetric", 5, 2, 23, 2, -1, 1))
sketch4.addConstraint(Sketcher.Constraint("Symmetric", 7, 2, 25, 2, -1, 1))
sketch4.addConstraint(Sketcher.Constraint("Symmetric", 11, 2, 29, 2, -1, 1))
sketch4.addConstraint(Sketcher.Constraint("Symmetric", 14, 2, 32, 2, -1, 1))
sketch4.addConstraint(Sketcher.Constraint("Symmetric", 16, 2, 34, 2, -1, 1))
sketch4.addConstraint(Sketcher.Constraint("Symmetric", 5, 2, 8, 2, -2))
sketch4.addConstraint(Sketcher.Constraint("Symmetric", 2, 2, 11, 2, -2))
sketch4.addConstraint(Sketcher.Constraint("Symmetric", 17, 2, 32, 2, -2))
sketch4.addConstraint(Sketcher.Constraint("Parallel", 0, 2))
sketch4.addConstraint(Sketcher.Constraint("Parallel", 3, 5))
sketch4.addConstraint(Sketcher.Constraint("Perpendicular", 2, 9))
sketch4.addConstraint(Sketcher.Constraint("Parallel", 9, 11))
sketch4.addConstraint(Sketcher.Constraint("Perpendicular", 5, 12))
sketch4.addConstraint(Sketcher.Constraint("Parallel", 12, 14))
sketch4.addConstraint(Sketcher.Constraint("Perpendicular", 11, 18))
sketch4.addConstraint(Sketcher.Constraint("Parallel", 18, 20))
sketch4.addConstraint(Sketcher.Constraint("Perpendicular", 14, 21))
sketch4.addConstraint(Sketcher.Constraint("Parallel", 21, 23))
sketch4.addConstraint(Sketcher.Constraint("Perpendicular", 20, 27))
sketch4.addConstraint(Sketcher.Constraint("Parallel", 27, 29))
sketch4.addConstraint(Sketcher.Constraint("Perpendicular", 23, 30))
sketch4.addConstraint(Sketcher.Constraint("Parallel", 30, 32))
sketch4.addConstraint(Sketcher.Constraint("Horizontal", 4, 2, 9, 2))
sketch4.addConstraint(Sketcher.Constraint("Horizontal", 0, 2, 13, 2))
sketch4.addConstraint(Sketcher.Constraint("Horizontal", 23, 2, 26, 2))
sketch4.addConstraint(Sketcher.Constraint("Equal", 35, 6))
sketch4.addConstraint(Sketcher.Constraint("Equal", 25, 16))
sketch4.addConstraint(Sketcher.Constraint("Equal", 0, 2))
sketch4.addConstraint(Sketcher.Constraint("Equal", 2, 3))
sketch4.addConstraint(Sketcher.Constraint("Equal", 3, 5))
sketch4.addConstraint(Sketcher.Constraint("DistanceX", 7, 2, 7, 1, Q("5 mm")))
sketch4.addConstraint(Sketcher.Constraint("Radius", 1, Q("162.5 mm")))
sketch4.addConstraint(Sketcher.Constraint("Angle", 0, Q("30 deg")))
sketch4.addConstraint(Sketcher.Constraint("DistanceY", -1, 1, 6, 2, Q("165 mm")))
sketch4.addConstraint(Sketcher.Constraint("DistanceX", 15, 2, 15, 1, Q("155.67 mm")))
sketch4.setExpression("Constraints[94]", "Params.sketch4_width")
sketch4.setExpression("Constraints[95]", "Params.sketch4_radius")
sketch4.setExpression("Constraints[98]", "Params.sketch4_width2")
pad3 = body.newObject("PartDesign::Pad", "Pad002")
pad3.Profile = sketch4
pad3.setExpression("Length", "Params.pad3_length")

# Sketch on XY plane
sketch5 = body.newObject("Sketcher::SketchObject", "Sketch004")
sketch5.AttachmentSupport = (doc.getObject("XY_Plane"), [""])
sketch5.MapMode = "FlatFace"
sketch5.AttachmentOffset = App.Placement(Vector(0, 0, 53), App.Rotation())
sketch5.addGeometry(Part.Circle(Vector(0, 0, 0), Vector(0, 0, 1), 50), False)
sketch5.addConstraint(Sketcher.Constraint("Coincident", 0, 3, -1, 1))
sketch5.addConstraint(Sketcher.Constraint("Diameter", 0, Q("100 mm")))
sketch5.setExpression("Constraints[1]", "Params.sketch5_diameter")
pad4 = body.newObject("PartDesign::Pad", "Pad003")
pad4.Profile = sketch5
pad4.Type = "TwoLengths"
pad4.setExpression("Length", "Params.pad4_length")
pad4.setExpression("Length2", "Params.pad4_length2")
pad4.setExpression("TaperAngle", "Params.pad4_taper")

# Sketch on XY plane
sketch6 = body.newObject("Sketcher::SketchObject", "Sketch005")
sketch6.AttachmentSupport = (doc.getObject("XY_Plane"), [""])
sketch6.MapMode = "FlatFace"
sketch6.AttachmentOffset = App.Placement(Vector(0, 0, 50), App.Rotation())
sketch6.addGeometry(Part.Circle(Vector(0, 0, 0), Vector(0, 0, 1), 5), False)
sketch6.addConstraint(Sketcher.Constraint("Coincident", 0, 3, -1, 1))
sketch6.addConstraint(Sketcher.Constraint("Diameter", 0, Q("10 mm")))
sketch6.setExpression("Constraints[1]", "Params.sketch6_diameter")
pocket2 = body.newObject("PartDesign::Pocket", "Pocket001")
pocket2.Profile = sketch6
pocket2.setExpression("Length", "Params.pocket2_length")
pocket2.Reversed = True

doc.recompute()
